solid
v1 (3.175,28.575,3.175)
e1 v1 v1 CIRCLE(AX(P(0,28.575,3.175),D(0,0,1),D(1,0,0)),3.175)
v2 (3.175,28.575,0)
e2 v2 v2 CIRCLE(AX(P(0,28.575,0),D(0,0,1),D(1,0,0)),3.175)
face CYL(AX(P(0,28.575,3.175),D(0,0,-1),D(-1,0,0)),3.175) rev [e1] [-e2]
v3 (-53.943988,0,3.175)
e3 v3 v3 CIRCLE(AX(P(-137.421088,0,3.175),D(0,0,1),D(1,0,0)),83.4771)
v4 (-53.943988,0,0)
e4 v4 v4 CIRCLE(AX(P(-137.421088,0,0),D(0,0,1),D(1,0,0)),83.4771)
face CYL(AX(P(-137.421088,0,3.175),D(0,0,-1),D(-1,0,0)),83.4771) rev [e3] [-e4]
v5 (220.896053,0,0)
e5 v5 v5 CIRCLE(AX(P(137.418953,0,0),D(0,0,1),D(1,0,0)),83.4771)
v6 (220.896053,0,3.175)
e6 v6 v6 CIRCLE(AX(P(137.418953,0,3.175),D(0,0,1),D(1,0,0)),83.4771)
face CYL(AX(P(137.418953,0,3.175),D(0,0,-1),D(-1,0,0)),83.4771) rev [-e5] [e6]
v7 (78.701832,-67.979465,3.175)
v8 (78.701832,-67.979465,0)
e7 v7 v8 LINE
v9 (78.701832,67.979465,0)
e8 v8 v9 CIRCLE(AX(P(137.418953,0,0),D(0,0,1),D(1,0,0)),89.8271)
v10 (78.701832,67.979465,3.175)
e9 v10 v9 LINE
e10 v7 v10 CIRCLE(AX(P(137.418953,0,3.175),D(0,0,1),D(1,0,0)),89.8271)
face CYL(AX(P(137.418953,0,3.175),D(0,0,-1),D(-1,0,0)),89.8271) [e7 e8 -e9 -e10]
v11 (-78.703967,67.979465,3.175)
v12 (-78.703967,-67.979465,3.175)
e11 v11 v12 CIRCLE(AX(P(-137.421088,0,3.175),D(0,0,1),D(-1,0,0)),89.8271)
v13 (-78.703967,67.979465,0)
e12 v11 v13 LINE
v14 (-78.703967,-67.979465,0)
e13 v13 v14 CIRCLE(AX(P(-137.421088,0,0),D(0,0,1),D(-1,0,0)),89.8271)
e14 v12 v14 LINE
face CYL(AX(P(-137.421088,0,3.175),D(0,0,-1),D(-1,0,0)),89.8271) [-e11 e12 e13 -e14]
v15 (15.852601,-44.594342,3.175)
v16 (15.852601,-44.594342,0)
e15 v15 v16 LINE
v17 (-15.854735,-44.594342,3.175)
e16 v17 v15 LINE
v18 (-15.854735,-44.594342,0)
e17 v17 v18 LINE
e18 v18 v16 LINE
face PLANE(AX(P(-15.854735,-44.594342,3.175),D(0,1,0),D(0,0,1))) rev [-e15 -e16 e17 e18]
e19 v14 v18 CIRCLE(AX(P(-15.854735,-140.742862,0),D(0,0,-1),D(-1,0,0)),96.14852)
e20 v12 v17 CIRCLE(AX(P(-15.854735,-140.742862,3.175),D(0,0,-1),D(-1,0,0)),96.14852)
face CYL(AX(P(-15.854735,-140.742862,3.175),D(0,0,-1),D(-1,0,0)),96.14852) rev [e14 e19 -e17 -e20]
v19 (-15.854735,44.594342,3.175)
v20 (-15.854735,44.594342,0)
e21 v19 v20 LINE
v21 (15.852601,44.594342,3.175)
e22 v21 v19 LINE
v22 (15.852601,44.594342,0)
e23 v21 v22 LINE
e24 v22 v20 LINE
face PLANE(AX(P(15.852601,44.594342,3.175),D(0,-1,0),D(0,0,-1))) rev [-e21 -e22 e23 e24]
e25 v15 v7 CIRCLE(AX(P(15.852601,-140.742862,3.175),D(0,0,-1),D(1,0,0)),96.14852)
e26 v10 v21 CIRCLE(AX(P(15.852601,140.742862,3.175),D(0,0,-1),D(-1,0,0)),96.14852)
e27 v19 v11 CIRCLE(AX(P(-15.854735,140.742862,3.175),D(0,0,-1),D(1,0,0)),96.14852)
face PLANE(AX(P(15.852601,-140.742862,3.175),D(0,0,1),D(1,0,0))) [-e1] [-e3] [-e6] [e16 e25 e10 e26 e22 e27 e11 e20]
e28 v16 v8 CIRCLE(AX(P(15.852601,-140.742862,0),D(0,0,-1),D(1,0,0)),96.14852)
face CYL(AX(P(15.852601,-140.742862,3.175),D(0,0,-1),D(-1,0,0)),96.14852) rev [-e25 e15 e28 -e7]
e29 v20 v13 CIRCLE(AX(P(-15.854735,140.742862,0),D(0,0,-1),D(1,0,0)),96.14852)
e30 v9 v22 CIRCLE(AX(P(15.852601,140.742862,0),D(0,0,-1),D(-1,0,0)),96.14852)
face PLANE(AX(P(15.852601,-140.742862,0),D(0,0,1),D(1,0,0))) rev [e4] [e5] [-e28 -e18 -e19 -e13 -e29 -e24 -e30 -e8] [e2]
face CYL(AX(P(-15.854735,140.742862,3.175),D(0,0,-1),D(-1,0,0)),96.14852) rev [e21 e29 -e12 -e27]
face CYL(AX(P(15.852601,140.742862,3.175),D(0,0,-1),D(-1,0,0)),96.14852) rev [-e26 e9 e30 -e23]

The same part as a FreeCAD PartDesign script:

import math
import FreeCAD as App
import Part
import Sketcher
Q = App.Units.Quantity

doc = App.newDocument("Part")
body = doc.addObject("PartDesign::Body", "Body")

sketch1 = body.newObject("Sketcher::SketchObject", "Sketch")
sketch1.AttachmentSupport = (doc.getObject("XY_Plane"), [""])
sketch1.MapMode = "FlatFace"
sketch1.addGeometry([
    Part.LineSegment(App.Vector(-15.854735, -44.594342, 0), App.Vector(15.852601, -44.594342, 0)),
    Part.ArcOfCircle(Part.Circle(App.Vector(15.852601, -140.742862, 0), App.Vector(0, 0, 1), 96.14852), math.radians(49.181256), math.radians(90)),
    Part.ArcOfCircle(Part.Circle(App.Vector(137.418953, 0, 0), App.Vector(0, 0, 1), 89.8271), math.radians(-130.818744), math.radians(130.818744)),
    Part.ArcOfCircle(Part.Circle(App.Vector(15.852601, 140.742862, 0), App.Vector(0, 0, 1), 96.14852), math.radians(-90), math.radians(-49.181256)),
    Part.LineSegment(App.Vector(15.852601, 44.594342, 0), App.Vector(-15.854735, 44.594342, 0)),
    Part.ArcOfCircle(Part.Circle(App.Vector(-15.854735, 140.742862, 0), App.Vector(0, 0, 1), 96.14852), math.radians(-130.818744), math.radians(-90)),
    Part.ArcOfCircle(Part.Circle(App.Vector(-137.421088, 0, 0), App.Vector(0, 0, 1), 89.8271), math.radians(49.181256), math.radians(310.818744)),
    Part.ArcOfCircle(Part.Circle(App.Vector(-15.854735, -140.742862, 0), App.Vector(0, 0, 1), 96.14852), math.radians(90), math.radians(130.818744)),
    Part.Circle(App.Vector(-137.421088, 0, 0), App.Vector(0, 0, 1), 83.4771),
    Part.Circle(App.Vector(137.418953, 0, 0), App.Vector(0, 0, 1), 83.4771),
    Part.Circle(App.Vector(0, 28.575, 0), App.Vector(0, 0, 1), 3.175),
], False)
sketch1.addConstraint([
    Sketcher.Constraint("Tangent", 0, 2, 1, 2),
    Sketcher.Constraint("Tangent", 1, 1, 2, 1),
    Sketcher.Constraint("Tangent", 2, 2, 3, 2),
    Sketcher.Constraint("Tangent", 3, 1, 4, 1),
    Sketcher.Constraint("Tangent", 4, 2, 5, 2),
    Sketcher.Constraint("Tangent", 5, 1, 6, 1),
    Sketcher.Constraint("Tangent", 6, 2, 7, 2),
    Sketcher.Constraint("Tangent", 7, 1, 0, 1),
    Sketcher.Constraint("Horizontal", 0),
    Sketcher.Constraint("Horizontal", 4),
    Sketcher.Constraint("Coincident", 8, 3, 6, 3),
    Sketcher.Constraint("Coincident", 9, 3, 2, 3),
    Sketcher.Constraint("Equal", 1, 3),
    Sketcher.Constraint("Equal", 3, 5),
    Sketcher.Constraint("Equal", 2, 6),
    Sketcher.Constraint("Equal", 5, 7),
    Sketcher.Constraint("Equal", 8, 9),
    Sketcher.Constraint("Symmetric", 1, 3, 3, 3, -1),
    Sketcher.Constraint("PointOnObject", 6, 3, -1),
    Sketcher.Constraint("PointOnObject", 10, 3, -2),
    Sketcher.Constraint("Diameter", 10, Q("0.25 in")),
    Sketcher.Constraint("Diameter", 8, Q("6.573 in")),
    Sketcher.Constraint("Radius", 2, Q("3.5365 in")),
    Sketcher.Constraint("DistanceY", -1, 1, 10, 3, Q("1.125 in")),
    Sketcher.Constraint("Radius", 1, Q("96.14852 mm")),
    Sketcher.Constraint("DistanceX", -1, 1, 1, 3, Q("15.852601 mm")),
    Sketcher.Constraint("DistanceX", 0, 1, 0, 2, Q("31.707336 mm")),
    Sketcher.Constraint("DistanceY", 1, 3, -1, 1, Q("140.742862 mm")),
])
pad1 = body.newObject("PartDesign::Pad", "Pad")
pad1.Profile = sketch1
pad1.Length = Q("0.125 in")

doc.recompute()
